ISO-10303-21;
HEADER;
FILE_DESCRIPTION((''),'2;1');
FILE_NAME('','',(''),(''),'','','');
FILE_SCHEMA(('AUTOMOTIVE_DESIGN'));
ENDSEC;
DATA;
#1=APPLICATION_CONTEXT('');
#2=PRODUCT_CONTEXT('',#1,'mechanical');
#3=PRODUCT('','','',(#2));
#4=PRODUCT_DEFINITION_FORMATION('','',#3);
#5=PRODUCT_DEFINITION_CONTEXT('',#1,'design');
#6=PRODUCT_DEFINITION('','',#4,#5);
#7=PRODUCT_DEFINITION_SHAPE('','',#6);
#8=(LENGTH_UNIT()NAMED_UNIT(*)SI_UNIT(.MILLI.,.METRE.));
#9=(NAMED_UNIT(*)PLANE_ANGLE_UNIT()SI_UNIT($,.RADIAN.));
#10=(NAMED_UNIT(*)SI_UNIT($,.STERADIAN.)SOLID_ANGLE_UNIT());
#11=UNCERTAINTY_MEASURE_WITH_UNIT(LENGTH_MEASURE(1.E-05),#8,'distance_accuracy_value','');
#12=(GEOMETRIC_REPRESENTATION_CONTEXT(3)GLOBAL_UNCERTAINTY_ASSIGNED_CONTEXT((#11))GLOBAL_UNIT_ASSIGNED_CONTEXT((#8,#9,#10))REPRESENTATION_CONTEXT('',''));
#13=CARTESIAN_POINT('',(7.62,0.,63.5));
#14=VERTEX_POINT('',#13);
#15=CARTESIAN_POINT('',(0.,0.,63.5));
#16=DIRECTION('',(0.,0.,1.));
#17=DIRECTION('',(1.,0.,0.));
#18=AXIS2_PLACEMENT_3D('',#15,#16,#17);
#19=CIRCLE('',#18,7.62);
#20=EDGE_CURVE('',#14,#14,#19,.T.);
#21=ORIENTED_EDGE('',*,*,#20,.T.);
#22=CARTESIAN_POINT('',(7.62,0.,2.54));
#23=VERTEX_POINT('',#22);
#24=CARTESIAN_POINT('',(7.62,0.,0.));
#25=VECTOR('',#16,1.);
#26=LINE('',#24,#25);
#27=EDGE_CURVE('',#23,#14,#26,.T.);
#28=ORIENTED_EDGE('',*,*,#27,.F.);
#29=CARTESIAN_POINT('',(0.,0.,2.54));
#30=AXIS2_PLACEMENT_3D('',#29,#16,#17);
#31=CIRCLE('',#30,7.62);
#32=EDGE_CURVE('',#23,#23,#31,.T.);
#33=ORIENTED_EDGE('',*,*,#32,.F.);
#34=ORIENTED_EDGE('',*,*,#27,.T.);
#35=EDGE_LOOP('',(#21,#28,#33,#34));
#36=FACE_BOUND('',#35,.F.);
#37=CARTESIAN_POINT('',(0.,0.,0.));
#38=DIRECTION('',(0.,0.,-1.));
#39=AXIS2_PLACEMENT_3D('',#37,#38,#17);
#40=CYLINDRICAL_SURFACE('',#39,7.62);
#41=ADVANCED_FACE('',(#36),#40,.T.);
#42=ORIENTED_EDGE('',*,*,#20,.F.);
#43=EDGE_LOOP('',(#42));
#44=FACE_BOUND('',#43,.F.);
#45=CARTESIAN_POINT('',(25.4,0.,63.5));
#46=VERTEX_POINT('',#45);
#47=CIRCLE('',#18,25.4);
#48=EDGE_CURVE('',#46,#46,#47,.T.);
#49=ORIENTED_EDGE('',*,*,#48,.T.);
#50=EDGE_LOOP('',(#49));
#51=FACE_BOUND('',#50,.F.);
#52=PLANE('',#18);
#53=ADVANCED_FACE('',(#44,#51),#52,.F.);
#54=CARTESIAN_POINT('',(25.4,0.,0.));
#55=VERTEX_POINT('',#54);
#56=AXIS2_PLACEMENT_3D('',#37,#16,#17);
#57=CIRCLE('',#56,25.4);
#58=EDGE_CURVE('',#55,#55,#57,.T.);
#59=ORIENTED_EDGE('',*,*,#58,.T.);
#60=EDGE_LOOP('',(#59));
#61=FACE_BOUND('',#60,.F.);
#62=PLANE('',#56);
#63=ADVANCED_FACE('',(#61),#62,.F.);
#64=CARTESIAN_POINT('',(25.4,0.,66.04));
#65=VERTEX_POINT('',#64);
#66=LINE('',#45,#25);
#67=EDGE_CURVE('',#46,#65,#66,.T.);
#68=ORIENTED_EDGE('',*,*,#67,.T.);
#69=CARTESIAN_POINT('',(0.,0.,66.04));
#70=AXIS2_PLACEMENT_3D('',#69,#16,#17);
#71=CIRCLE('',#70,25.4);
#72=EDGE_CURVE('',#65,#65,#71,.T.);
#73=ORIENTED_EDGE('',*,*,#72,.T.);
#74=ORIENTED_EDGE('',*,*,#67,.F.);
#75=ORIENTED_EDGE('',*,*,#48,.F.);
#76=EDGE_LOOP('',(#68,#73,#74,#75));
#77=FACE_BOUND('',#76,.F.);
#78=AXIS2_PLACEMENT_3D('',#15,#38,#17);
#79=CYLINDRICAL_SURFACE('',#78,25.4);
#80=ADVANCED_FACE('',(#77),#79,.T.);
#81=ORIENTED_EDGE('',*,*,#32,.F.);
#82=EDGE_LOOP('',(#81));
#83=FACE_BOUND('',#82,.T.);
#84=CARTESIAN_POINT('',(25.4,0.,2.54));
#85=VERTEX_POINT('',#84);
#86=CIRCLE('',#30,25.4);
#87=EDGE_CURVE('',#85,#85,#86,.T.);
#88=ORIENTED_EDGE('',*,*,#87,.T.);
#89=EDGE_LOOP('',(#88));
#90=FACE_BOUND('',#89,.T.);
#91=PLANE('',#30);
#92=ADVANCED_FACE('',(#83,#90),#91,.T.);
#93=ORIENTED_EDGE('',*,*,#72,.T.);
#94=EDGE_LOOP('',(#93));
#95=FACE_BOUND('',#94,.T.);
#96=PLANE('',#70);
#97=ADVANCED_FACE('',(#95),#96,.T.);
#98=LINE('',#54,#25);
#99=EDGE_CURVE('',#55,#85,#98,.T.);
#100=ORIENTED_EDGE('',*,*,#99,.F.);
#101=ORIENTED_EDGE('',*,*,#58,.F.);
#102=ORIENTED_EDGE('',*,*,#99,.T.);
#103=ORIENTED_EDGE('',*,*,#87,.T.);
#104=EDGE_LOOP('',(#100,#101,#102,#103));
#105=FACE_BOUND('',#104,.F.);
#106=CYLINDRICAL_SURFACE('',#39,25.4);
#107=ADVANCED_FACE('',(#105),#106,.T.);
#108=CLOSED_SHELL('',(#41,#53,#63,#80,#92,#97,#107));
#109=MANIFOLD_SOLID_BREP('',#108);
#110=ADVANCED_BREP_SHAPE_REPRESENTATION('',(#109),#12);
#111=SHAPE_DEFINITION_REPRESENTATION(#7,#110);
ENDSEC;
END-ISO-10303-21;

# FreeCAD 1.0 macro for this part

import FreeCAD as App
import Part
import Sketcher

V = App.Vector
Q = App.Units.Quantity

doc = App.newDocument("Part")
body = doc.addObject("PartDesign::Body", "Body")

sketch1 = body.newObject("Sketcher::SketchObject", "Sketch")
sketch1.AttachmentSupport = (doc.getObject("XY_Plane"), [""])
sketch1.MapMode = "FlatFace"
sketch1.addGeometry(Part.Circle(V(0, 0, 0), V(0, 0, 1), 25), False)
sketch1.addGeometry(Part.Circle(V(0, 0, 0), V(0, 0, 1), 8), False)
sketch1.addConstraint(Sketcher.Constraint("Coincident", 0, 3, -1, 1))
sketch1.addConstraint(Sketcher.Constraint("Coincident", 1, 3, -1, 1))
sketch1.addConstraint(Sketcher.Constraint("Diameter", 0, Q("2 in")))
sketch1.addConstraint(Sketcher.Constraint("Diameter", 1, Q("0.6 in")))
pad1 = body.newObject("PartDesign::Pad", "Pad")
pad1.Profile = sketch1
pad1.Length = Q("0.1 in")

sketch2 = body.newObject("Sketcher::SketchObject", "Sketch001")
sketch2.AttachmentSupport = (doc.getObject("XY_Plane"), [""])
sketch2.MapMode = "FlatFace"
sketch2.addGeometry(Part.Circle(V(0, 0, 0), V(0, 0, 1), 8), False)
sketch2.addConstraint(Sketcher.Constraint("Coincident", 0, 3, -1, 1))
sketch2.addConstraint(Sketcher.Constraint("Diameter", 0, Q("0.6 in")))
pad2 = body.newObject("PartDesign::Pad", "Pad001")
pad2.Profile = sketch2
pad2.Length = Q("2.5 in")

sketch3 = body.newObject("Sketcher::SketchObject", "Sketch002")
sketch3.AttachmentSupport = (doc.getObject("XY_Plane"), [""])
sketch3.MapMode = "FlatFace"
sketch3.AttachmentOffset = App.Placement(V(0, 0, 2.5 * 25.4), App.Rotation())
sketch3.addGeometry(Part.Circle(V(0, 0, 0), V(0, 0, 1), 25), False)
sketch3.addConstraint(Sketcher.Constraint("Coincident", 0, 3, -1, 1))
sketch3.addConstraint(Sketcher.Constraint("Diameter", 0, Q("2 in")))
pad3 = body.newObject("PartDesign::Pad", "Pad002")
pad3.Profile = sketch3
pad3.Length = Q("0.1 in")

doc.recompute()
